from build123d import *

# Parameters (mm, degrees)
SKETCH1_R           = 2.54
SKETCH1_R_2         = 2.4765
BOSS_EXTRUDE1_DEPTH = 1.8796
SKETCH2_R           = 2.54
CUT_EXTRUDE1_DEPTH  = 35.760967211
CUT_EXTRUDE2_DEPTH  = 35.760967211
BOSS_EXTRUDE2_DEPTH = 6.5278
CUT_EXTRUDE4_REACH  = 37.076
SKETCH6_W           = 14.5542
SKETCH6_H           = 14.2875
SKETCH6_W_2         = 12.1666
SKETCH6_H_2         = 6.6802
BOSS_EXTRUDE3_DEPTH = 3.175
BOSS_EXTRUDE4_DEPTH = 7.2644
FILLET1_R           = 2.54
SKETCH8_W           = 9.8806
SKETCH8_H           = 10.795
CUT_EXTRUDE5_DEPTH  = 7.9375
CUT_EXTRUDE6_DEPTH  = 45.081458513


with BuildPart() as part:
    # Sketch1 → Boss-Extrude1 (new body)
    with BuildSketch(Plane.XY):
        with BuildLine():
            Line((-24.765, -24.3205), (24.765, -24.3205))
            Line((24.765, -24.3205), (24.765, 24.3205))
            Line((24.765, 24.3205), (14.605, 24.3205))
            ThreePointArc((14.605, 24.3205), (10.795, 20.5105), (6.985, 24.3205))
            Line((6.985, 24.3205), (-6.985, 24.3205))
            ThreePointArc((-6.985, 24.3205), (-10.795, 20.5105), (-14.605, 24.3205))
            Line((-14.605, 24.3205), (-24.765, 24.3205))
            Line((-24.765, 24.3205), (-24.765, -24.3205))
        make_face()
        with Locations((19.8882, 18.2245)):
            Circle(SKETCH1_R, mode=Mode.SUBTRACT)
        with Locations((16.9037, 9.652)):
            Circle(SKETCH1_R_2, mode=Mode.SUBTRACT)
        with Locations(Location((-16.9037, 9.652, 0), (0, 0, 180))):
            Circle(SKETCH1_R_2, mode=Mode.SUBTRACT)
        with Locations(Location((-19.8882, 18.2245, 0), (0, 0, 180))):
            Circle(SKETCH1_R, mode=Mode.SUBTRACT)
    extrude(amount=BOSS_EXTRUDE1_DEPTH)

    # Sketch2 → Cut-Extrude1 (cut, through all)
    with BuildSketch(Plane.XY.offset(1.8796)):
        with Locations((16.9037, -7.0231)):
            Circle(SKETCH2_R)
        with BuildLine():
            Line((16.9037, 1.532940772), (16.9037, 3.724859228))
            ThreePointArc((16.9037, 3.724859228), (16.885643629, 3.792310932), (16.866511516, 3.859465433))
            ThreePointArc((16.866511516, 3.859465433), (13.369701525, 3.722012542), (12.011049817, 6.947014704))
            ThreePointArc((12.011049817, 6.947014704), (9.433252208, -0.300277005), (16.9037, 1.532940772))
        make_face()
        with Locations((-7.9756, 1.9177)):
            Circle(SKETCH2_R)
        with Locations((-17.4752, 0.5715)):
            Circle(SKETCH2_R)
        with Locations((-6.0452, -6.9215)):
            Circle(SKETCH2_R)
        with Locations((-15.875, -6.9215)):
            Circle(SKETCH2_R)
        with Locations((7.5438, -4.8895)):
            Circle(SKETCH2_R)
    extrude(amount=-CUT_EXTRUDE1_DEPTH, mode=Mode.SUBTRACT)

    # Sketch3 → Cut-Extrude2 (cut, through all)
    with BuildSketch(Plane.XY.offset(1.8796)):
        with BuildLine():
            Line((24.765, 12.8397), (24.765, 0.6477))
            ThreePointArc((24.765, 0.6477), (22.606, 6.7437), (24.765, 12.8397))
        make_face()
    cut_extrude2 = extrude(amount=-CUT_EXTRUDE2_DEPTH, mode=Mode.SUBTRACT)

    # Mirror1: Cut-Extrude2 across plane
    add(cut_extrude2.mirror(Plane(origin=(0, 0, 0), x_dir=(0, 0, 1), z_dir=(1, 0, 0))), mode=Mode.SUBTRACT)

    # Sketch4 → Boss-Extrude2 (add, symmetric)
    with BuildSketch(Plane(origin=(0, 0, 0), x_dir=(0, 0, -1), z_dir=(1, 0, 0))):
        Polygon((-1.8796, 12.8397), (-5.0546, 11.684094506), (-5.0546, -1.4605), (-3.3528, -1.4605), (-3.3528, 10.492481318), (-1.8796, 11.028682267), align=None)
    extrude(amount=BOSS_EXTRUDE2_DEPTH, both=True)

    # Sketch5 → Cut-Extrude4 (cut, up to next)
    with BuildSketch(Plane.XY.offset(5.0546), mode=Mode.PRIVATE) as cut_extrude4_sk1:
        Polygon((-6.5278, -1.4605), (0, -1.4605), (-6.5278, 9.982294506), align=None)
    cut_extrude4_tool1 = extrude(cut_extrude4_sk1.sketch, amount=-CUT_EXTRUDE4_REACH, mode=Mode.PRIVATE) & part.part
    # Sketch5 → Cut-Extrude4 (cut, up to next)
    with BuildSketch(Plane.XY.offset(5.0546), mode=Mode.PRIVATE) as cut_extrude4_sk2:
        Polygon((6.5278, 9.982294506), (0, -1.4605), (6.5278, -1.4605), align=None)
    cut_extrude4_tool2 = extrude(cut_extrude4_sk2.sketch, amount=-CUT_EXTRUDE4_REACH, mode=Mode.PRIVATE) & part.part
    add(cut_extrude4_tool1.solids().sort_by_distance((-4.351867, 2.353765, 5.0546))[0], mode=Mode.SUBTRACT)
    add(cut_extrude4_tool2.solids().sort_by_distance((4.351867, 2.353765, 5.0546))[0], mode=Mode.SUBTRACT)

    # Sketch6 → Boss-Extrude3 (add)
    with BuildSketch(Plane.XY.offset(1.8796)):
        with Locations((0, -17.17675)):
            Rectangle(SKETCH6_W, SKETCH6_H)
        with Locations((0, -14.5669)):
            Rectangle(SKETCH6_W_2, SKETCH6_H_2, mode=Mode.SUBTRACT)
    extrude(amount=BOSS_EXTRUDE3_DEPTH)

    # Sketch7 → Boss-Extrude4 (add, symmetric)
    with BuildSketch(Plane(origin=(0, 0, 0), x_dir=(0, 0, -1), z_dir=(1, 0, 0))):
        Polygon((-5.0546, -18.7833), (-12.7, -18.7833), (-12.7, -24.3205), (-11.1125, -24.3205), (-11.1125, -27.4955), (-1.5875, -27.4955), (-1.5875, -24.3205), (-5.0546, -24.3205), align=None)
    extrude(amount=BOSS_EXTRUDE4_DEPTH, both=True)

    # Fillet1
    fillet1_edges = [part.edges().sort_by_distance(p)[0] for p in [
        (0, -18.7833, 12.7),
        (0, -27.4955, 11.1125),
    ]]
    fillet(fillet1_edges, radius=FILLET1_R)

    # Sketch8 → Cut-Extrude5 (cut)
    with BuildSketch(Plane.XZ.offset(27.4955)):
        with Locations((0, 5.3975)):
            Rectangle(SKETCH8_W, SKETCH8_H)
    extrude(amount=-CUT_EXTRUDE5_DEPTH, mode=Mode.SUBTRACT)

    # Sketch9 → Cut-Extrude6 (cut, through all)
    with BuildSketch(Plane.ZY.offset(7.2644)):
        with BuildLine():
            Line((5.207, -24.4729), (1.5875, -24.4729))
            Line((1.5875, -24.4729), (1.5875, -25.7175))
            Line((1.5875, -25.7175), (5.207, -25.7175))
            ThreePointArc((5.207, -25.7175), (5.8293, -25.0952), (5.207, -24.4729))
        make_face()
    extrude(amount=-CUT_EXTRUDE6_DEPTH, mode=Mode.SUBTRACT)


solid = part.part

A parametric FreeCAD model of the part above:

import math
import FreeCAD as App
import Part
import Sketcher
from FreeCAD import Vector
Q = App.Units.Quantity


def edges_at(feature, points):
    """Names of the edges that pass closest to the given points."""
    edges = feature.Shape.Edges
    near = lambda p: min(range(len(edges)), key=lambda i: edges[i].distToShape(Part.Vertex(*p))[0])
    return sorted({f"Edge{near(p) + 1}" for p in points})


def add_polygon(sketch, points):
    """Adds a closed chain of lines whose ends are joined by coincident constraints."""
    first, n = sketch.GeometryCount, len(points)
    for a, b in zip(points, points[1:] + points[:1]):
        sketch.addGeometry(Part.LineSegment(App.Vector(*a, 0), App.Vector(*b, 0)), False)
    for i in range(n):
        sketch.addConstraint(Sketcher.Constraint("Coincident", first + i, 2, first + (i + 1) % n, 1))

doc = App.newDocument("Part")
params = doc.addObject("Spreadsheet::Sheet", "Params")
for row, (alias, value) in enumerate([
    ("sketch1_diameter", "0.2 in"),
    ("sketch1_radius", "0.15 in"),
    ("sketch1_diameter2", "0.195 in"),
    ("sketch1_width", "0.4 in"),
    ("sketch1_height", "1.915 in"),
    ("pad1_length", "0.074 in"),
    ("sketch2_diameter", "0.2 in"),
    ("sketch2_radius", "0.172 in"),
    ("sketch2_radius2", "0.121 in"),
    ("sketch3_height", "0.48 in"),
    ("sketch4_height", "0.067 in"),
    ("pad2_length", "0.514 in"),
    ("sketch5_width", "0.257 in"),
    ("sketch6_width", "0.257 in"),
    ("sketch7_width", "0.573 in"),
    ("sketch7_width2", "0.479 in"),
    ("sketch7_height", "0.5625 in"),
    ("sketch7_height2", "0.263 in"),
    ("pad3_length", "0.125 in"),
    ("sketch8_width", "0.218 in"),
    ("sketch8_width2", "0.125 in"),
    ("sketch8_height", "0.301 in"),
    ("sketch8_height2", "0.0625 in"),
    ("sketch8_height3", "0.375 in"),
    ("pad4_length", "0.572 in"),
    ("fillet_radius", "0.1 in"),
    ("sketch9_width", "0.389 in"),
    ("sketch9_height", "0.425 in"),
    ("pocket5_length", "0.3125 in"),
], start=1):
    params.set(f"A{row}", alias)
    params.set(f"B{row}", "=" + value)
    params.setAlias(f"B{row}", alias)

body = doc.addObject("PartDesign::Body", "Body")

sketch1 = doc.addObject("Sketcher::SketchObject", "Sketch")
body.addObject(sketch1)
sketch1.AttachmentSupport = (doc.XY_Plane, [""])
sketch1.MapMode = "FlatFace"
sketch1.addGeometry([
    Part.LineSegment(Vector(-24.8, -24.3, 0), Vector(24.8, -24.3, 0)),
    Part.LineSegment(Vector(24.8, -24.3, 0), Vector(24.8, 24.3, 0)),
    Part.LineSegment(Vector(24.8, 24.3, 0), Vector(14.6, 24.3, 0)),
    Part.ArcOfCircle(Part.Circle(Vector(10.8, 24.3, 0), Vector(0, 0, 1), 3.8), math.radians(180), math.radians(360)),
    Part.LineSegment(Vector(7, 24.3, 0), Vector(-7, 24.3, 0)),
    Part.ArcOfCircle(Part.Circle(Vector(-10.8, 24.3, 0), Vector(0, 0, 1), 3.8), math.radians(180), math.radians(360)),
    Part.LineSegment(Vector(-14.6, 24.3, 0), Vector(-24.8, 24.3, 0)),
    Part.LineSegment(Vector(-24.8, 24.3, 0), Vector(-24.8, -24.3, 0)),
    Part.Circle(Vector(-16.9, 9.7, 0), Vector(0, 0, 1), 2.5),
    Part.Circle(Vector(16.9, 9.7, 0), Vector(0, 0, 1), 2.5),
    Part.Circle(Vector(-19.9, 18.2, 0), Vector(0, 0, 1), 2.5),
    Part.Circle(Vector(19.9, 18.2, 0), Vector(0, 0, 1), 2.5),
], False)
sketch1.addConstraint([
    Sketcher.Constraint("Coincident", 0, 2, 1, 1),
    Sketcher.Constraint("Coincident", 1, 2, 2, 1),
    Sketcher.Constraint("Coincident", 2, 2, 3, 2),
    Sketcher.Constraint("Coincident", 3, 1, 4, 1),
    Sketcher.Constraint("Coincident", 4, 2, 5, 2),
    Sketcher.Constraint("Coincident", 5, 1, 6, 1),
    Sketcher.Constraint("Coincident", 6, 2, 7, 1),
    Sketcher.Constraint("Coincident", 7, 2, 0, 1),
    Sketcher.Constraint("Horizontal", 0),
    Sketcher.Constraint("Vertical", 1),
    Sketcher.Constraint("Horizontal", 2),
    Sketcher.Constraint("Horizontal", 4),
    Sketcher.Constraint("Horizontal", 6),
    Sketcher.Constraint("Vertical", 7),
    Sketcher.Constraint("Equal", 3, 5),
    Sketcher.Constraint("Equal", 8, 9),
    Sketcher.Constraint("Equal", 10, 11),
    Sketcher.Constraint("Symmetric", 0, 2, 6, 2, -1, 1),
    Sketcher.Constraint("Symmetric", 3, 3, 5, 3, -2),
    Sketcher.Constraint("Symmetric", 8, 3, 9, 3, -2),
    Sketcher.Constraint("Symmetric", 10, 3, 11, 3, -2),
    Sketcher.Constraint("Horizontal", 5, 3, 1, 2),
    Sketcher.Constraint("Horizontal", 2, 2, 3, 1),
    Sketcher.Constraint("Horizontal", 4, 2, 5, 1),
    Sketcher.Constraint("Diameter", 10, Q("0.2 in")),
    Sketcher.Constraint("Radius", 3, Q("0.15 in")),
    Sketcher.Constraint("Diameter", 8, Q("0.195 in")),
    Sketcher.Constraint("DistanceX", 2, 2, 2, 1, Q("0.4 in")),
    Sketcher.Constraint("DistanceX", 5, 3, 2, 2, Q("1 in")),
    Sketcher.Constraint("DistanceY", 1, 1, 1, 2, Q("1.915 in")),
    Sketcher.Constraint("DistanceY", -1, 1, 8, 3, Q("0.38 in")),
    Sketcher.Constraint("DistanceY", 10, 3, 5, 3, Q("0.24 in")),
    Sketcher.Constraint("DistanceX", 10, 3, -1, 1, Q("0.783 in")),
    Sketcher.Constraint("DistanceX", 8, 3, 9, 3, Q("1.331 in")),
])
sketch1.setExpression("Constraints[24]", "Params.sketch1_diameter")
sketch1.setExpression("Constraints[25]", "Params.sketch1_radius")
sketch1.setExpression("Constraints[26]", "Params.sketch1_diameter2")
sketch1.setExpression("Constraints[27]", "Params.sketch1_width")
sketch1.setExpression("Constraints[29]", "Params.sketch1_height")
pad1 = doc.addObject("PartDesign::Pad", "Pad")
body.addObject(pad1)
pad1.Profile = sketch1
pad1.setExpression("Length", "Params.pad1_length")

sketch2 = doc.addObject("Sketcher::SketchObject", "Sketch001")
body.addObject(sketch2)
sketch2.AttachmentSupport = (doc.XY_Plane, [""])
sketch2.MapMode = "FlatFace"
sketch2.AttachmentOffset = App.Placement(Vector(0, 0, 0.074 * 25.4), App.Rotation())
sketch2.addGeometry([
    Part.Circle(Vector(16.9, -7.02, 0), Vector(0, 0, 1), 2.54),
    Part.LineSegment(Vector(16.9, 1.53, 0), Vector(16.9, 3.72, 0)),
    Part.ArcOfCircle(Part.Circle(Vector(12.67, 2.63, 0), Vector(0, 0, 1), 4.37), math.radians(14.53), math.radians(16.36)),
    Part.ArcOfCircle(Part.Circle(Vector(15.02, 6.32, 0), Vector(0, 0, 1), 3.07), math.radians(168), math.radians(307)),
    Part.ArcOfCircle(Part.Circle(Vector(12.67, 2.63, 0), Vector(0, 0, 1), 4.37), math.radians(99), math.radians(345)),
    Part.Circle(Vector(-7.98, 1.92, 0), Vector(0, 0, 1), 2.54),
    Part.Circle(Vector(-17.48, 0.57, 0), Vector(0, 0, 1), 2.54),
    Part.Circle(Vector(-6.05, -6.92, 0), Vector(0, 0, 1), 2.54),
    Part.Circle(Vector(-15.88, -6.92, 0), Vector(0, 0, 1), 2.54),
    Part.Circle(Vector(7.54, -4.89, 0), Vector(0, 0, 1), 2.54),
], False)
sketch2.addConstraint([
    Sketcher.Constraint("Coincident", 1, 2, 2, 1),
    Sketcher.Constraint("Coincident", 2, 2, 3, 2),
    Sketcher.Constraint("Coincident", 3, 1, 4, 1),
    Sketcher.Constraint("Coincident", 4, 2, 1, 1),
    Sketcher.Constraint("Vertical", 1),
    Sketcher.Constraint("Coincident", 4, 3, 2, 3),
    Sketcher.Constraint("Equal", 2, 4),
    Sketcher.Constraint("Equal", 0, 5),
    Sketcher.Constraint("Equal", 5, 6),
    Sketcher.Constraint("Equal", 6, 7),
    Sketcher.Constraint("Equal", 7, 8),
    Sketcher.Constraint("Equal", 8, 9),
    Sketcher.Constraint("Horizontal", 7, 3, 8, 3),
    Sketcher.Constraint("Vertical", 0, 3, 1, 2),
    Sketcher.Constraint("Diameter", 0, Q("0.2 in")),
    Sketcher.Constraint("Radius", 2, Q("0.172 in")),
    Sketcher.Constraint("Radius", 3, Q("0.121 in")),
    Sketcher.Constraint("DistanceY", 0, 3, 2, 3, Q("0.38 in")),
    Sketcher.Constraint("DistanceX", 6, 3, 7, 3, Q("0.45 in")),
    Sketcher.Constraint("DistanceY", 7, 3, 9, 3, Q("0.08 in")),
    Sketcher.Constraint("DistanceX", -1, 1, 2, 3, Q("0.499 in")),
    Sketcher.Constraint("DistanceX", 5, 3, -1, 1, Q("0.314 in")),
    Sketcher.Constraint("DistanceX", 6, 3, -1, 1, Q("0.688 in")),
    Sketcher.Constraint("DistanceX", 8, 3, -1, 1, Q("0.625 in")),
    Sketcher.Constraint("DistanceX", -1, 1, 9, 3, Q("0.297 in")),
    Sketcher.Constraint("DistanceY", 5, 3, 4, 3, Q("0.028 in")),
    Sketcher.Constraint("DistanceY", 6, 3, 5, 3, Q("0.053 in")),
    Sketcher.Constraint("DistanceY", 7, 3, 5, 3, Q("0.348 in")),
    Sketcher.Constraint("DistanceX", -1, 1, 0, 3, Q("0.6655 in")),
    Sketcher.Constraint("DistanceY", 0, 3, -1, 1, Q("0.2765 in")),
    Sketcher.Constraint("DistanceX", -1, 1, 2, 2, Q("16.866512 mm")),
    Sketcher.Constraint("DistanceX", -1, 1, 3, 1, Q("12.01105 mm")),
])
sketch2.setExpression("Constraints[14]", "Params.sketch2_diameter")
sketch2.setExpression("Constraints[15]", "Params.sketch2_radius")
sketch2.setExpression("Constraints[16]", "Params.sketch2_radius2")
pocket1 = doc.addObject("PartDesign::Pocket", "Pocket")
body.addObject(pocket1)
pocket1.Profile = sketch2
pocket1.Type = "ThroughAll"

sketch3 = doc.addObject("Sketcher::SketchObject", "Sketch002")
body.addObject(sketch3)
sketch3.AttachmentSupport = (doc.XY_Plane, [""])
sketch3.MapMode = "FlatFace"
sketch3.AttachmentOffset = App.Placement(Vector(0, 0, 0.074 * 25.4), App.Rotation())
sketch3.addGeometry([
    Part.LineSegment(Vector(25, 1, 0), Vector(25, 13, 0)),
    Part.ArcOfCircle(Part.Circle(Vector(32, 7, 0), Vector(0, 0, 1), 10), math.radians(141), math.radians(219)),
], False)
sketch3.addConstraint([
    Sketcher.Constraint("Coincident", 0, 1, 1, 2),
    Sketcher.Constraint("Coincident", 1, 1, 0, 2),
    Sketcher.Constraint("Vertical", 0),
    Sketcher.Constraint("DistanceY", 0, 1, 0, 2, Q("0.48 in")),
    Sketcher.Constraint("DistanceX", -1, 1, 0, 1, Q("0.975 in")),
    Sketcher.Constraint("DistanceY", -1, 1, 1, 3, Q("0.2655 in")),
    Sketcher.Constraint("Radius", 1, Q("9.685618 mm")),
])
sketch3.setExpression("Constraints[3]", "Params.sketch3_height")
pocket2 = doc.addObject("PartDesign::Pocket", "Pocket001")
body.addObject(pocket2)
pocket2.Profile = sketch3
pocket2.Type = "ThroughAll"
doc.recompute()

mirrored = doc.addObject("PartDesign::Mirrored", "Mirrored")
body.addObject(mirrored)
mirrored.Originals = [pocket2]
mirrored.MirrorPlane = (doc.YZ_Plane, [""])
body.Tip = mirrored

sketch4 = doc.addObject("Sketcher::SketchObject", "Sketch003")
body.addObject(sketch4)
sketch4.AttachmentSupport = (doc.YZ_Plane, [""])
sketch4.MapMode = "FlatFace"
add_polygon(sketch4, [(12.8, 1.9), (11.7, 5.1), (-1.5, 5.1), (-1.5, 3.4), (10.5, 3.4), (11, 1.9)])
sketch4.addConstraint([
    Sketcher.Constraint("Horizontal", 1),
    Sketcher.Constraint("Vertical", 2),
    Sketcher.Constraint("Horizontal", 3),
    Sketcher.Constraint("Horizontal", 5),
    Sketcher.Constraint("Parallel", 0, 4),
    Sketcher.Constraint("Angle", 0, Q("110 deg")),
    Sketcher.Constraint("DistanceY", 2, 2, 2, 1, Q("0.067 in")),
    Sketcher.Constraint("DistanceX", 5, 1, 5, 2, Q("0.0712999 in")),
    Sketcher.Constraint("DistanceY", -1, 1, 0, 2, Q("0.199 in")),
    Sketcher.Constraint("DistanceY", -1, 1, 4, 2, Q("0.074 in")),
    Sketcher.Constraint("DistanceX", 2, 2, 5, 2, Q("0.563 in")),
    Sketcher.Constraint("DistanceX", 1, 2, -1, 1, Q("0.0575 in")),
])
sketch4.setExpression("Constraints[12]", "Params.sketch4_height")
pad2 = doc.addObject("PartDesign::Pad", "Pad001")
body.addObject(pad2)
pad2.Profile = sketch4
pad2.setExpression("Length", "Params.pad2_length")
pad2.Midplane = True

sketch5 = doc.addObject("Sketcher::SketchObject", "Sketch004")
body.addObject(sketch5)
sketch5.AttachmentSupport = (doc.XY_Plane, [""])
sketch5.MapMode = "FlatFace"
sketch5.AttachmentOffset = App.Placement(Vector(0, 0, 0.199 * 25.4), App.Rotation())
add_polygon(sketch5, [(-7, -1), (0, -1), (-7, 10)])
sketch5.addConstraint([
    Sketcher.Constraint("Horizontal", 0),
    Sketcher.Constraint("Vertical", 2),
    Sketcher.Constraint("PointOnObject", 0, 2, -2),
    Sketcher.Constraint("DistanceX", 0, 1, 0, 2, Q("0.257 in")),
    Sketcher.Constraint("DistanceY", 0, 2, -1, 1, Q("0.0575 in")),
    Sketcher.Constraint("DistanceY", 2, 2, 2, 1, Q("11.442795 mm")),
])
sketch5.setExpression("Constraints[6]", "Params.sketch5_width")
pocket3 = doc.addObject("PartDesign::Pocket", "Pocket002")
body.addObject(pocket3)
pocket3.Profile = sketch5
pocket3.Type = "UpToFirst"

sketch6 = doc.addObject("Sketcher::SketchObject", "Sketch005")
body.addObject(sketch6)
sketch6.AttachmentSupport = (doc.XY_Plane, [""])
sketch6.MapMode = "FlatFace"
sketch6.AttachmentOffset = App.Placement(Vector(0, 0, 0.199 * 25.4), App.Rotation())
add_polygon(sketch6, [(7, 10), (0, -1), (7, -1)])
sketch6.addConstraint([
    Sketcher.Constraint("Horizontal", 1),
    Sketcher.Constraint("Vertical", 2),
    Sketcher.Constraint("PointOnObject", 0, 2, -2),
    Sketcher.Constraint("DistanceX", 1, 1, 1, 2, Q("0.257 in")),
    Sketcher.Constraint("DistanceY", 0, 2, -1, 1, Q("0.0575 in")),
    Sketcher.Constraint("DistanceY", 2, 1, 2, 2, Q("11.442795 mm")),
])
sketch6.setExpression("Constraints[6]", "Params.sketch6_width")
pocket4 = doc.addObject("PartDesign::Pocket", "Pocket003")
body.addObject(pocket4)
pocket4.Profile = sketch6
pocket4.Type = "UpToFirst"

sketch7 = doc.addObject("Sketcher::SketchObject", "Sketch006")
body.addObject(sketch7)
sketch7.AttachmentSupport = (doc.XY_Plane, [""])
sketch7.MapMode = "FlatFace"
sketch7.AttachmentOffset = App.Placement(Vector(0, 0, 0.074 * 25.4), App.Rotation())
add_polygon(sketch7, [(-7, -10), (-7, -24), (7, -24), (7, -10)])
add_polygon(sketch7, [(6, -18), (-6, -18), (-6, -11), (6, -11)])
sketch7.addConstraint([
    Sketcher.Constraint("Vertical", 0),
    Sketcher.Constraint("Horizontal", 1),
    Sketcher.Constraint("Vertical", 2),
    Sketcher.Constraint("Horizontal", 3),
    Sketcher.Constraint("Horizontal", 4),
    Sketcher.Constraint("Vertical", 5),
    Sketcher.Constraint("Horizontal", 6),
    Sketcher.Constraint("Vertical", 7),
    Sketcher.Constraint("DistanceX", 1, 1, 1, 2, Q("0.573 in")),
    Sketcher.Constraint("DistanceX", 4, 2, 4, 1, Q("0.479 in")),
    Sketcher.Constraint("DistanceY", 0, 2, 0, 1, Q("0.5625 in")),
    Sketcher.Constraint("DistanceY", 5, 1, 5, 2, Q("0.263 in")),
    Sketcher.Constraint("DistanceY", 4, 2, 3, 2, Q("0.31 in")),
    Sketcher.Constraint("DistanceY", 2, 2, -1, 1, Q("0.395 in")),
    Sketcher.Constraint("DistanceX", 0, 2, 4, 2, Q("0.047 in")),
    Sketcher.Constraint("DistanceX", 0, 2, -1, 1, Q("0.2865 in")),
])
sketch7.setExpression("Constraints[16]", "Params.sketch7_width")
sketch7.setExpression("Constraints[17]", "Params.sketch7_width2")
sketch7.setExpression("Constraints[18]", "Params.sketch7_height")
sketch7.setExpression("Constraints[19]", "Params.sketch7_height2")
pad3 = doc.addObject("PartDesign::Pad", "Pad002")
body.addObject(pad3)
pad3.Profile = sketch7
pad3.setExpression("Length", "Params.pad3_length")

sketch8 = doc.addObject("Sketcher::SketchObject", "Sketch007")
body.addObject(sketch8)
sketch8.AttachmentSupport = (doc.YZ_Plane, [""])
sketch8.MapMode = "FlatFace"
add_polygon(sketch8, [(-18.8, 5.1), (-18.8, 12.7), (-24.3, 12.7), (-24.3, 11.1), (-27.5, 11.1), (-27.5, 1.6), (-24.3, 1.6), (-24.3, 5.1)])
sketch8.addConstraint([
    Sketcher.Constraint("Vertical", 0),
    Sketcher.Constraint("Horizontal", 1),
    Sketcher.Constraint("Vertical", 2),
    Sketcher.Constraint("Horizontal", 3),
    Sketcher.Constraint("Vertical", 4),
    Sketcher.Constraint("Horizontal", 5),
    Sketcher.Constraint("Vertical", 6),
    Sketcher.Constraint("Horizontal", 7),
    Sketcher.Constraint("Vertical", 2, 2, 5, 2),
    Sketcher.Constraint("DistanceY", -1, 1, 0, 2, Q("0.5 in")),
    Sketcher.Constraint("DistanceX", 1, 2, 1, 1, Q("0.218 in")),
    Sketcher.Constraint("DistanceX", 3, 2, 3, 1, Q("0.125 in")),
    Sketcher.Constraint("DistanceY", 0, 1, 0, 2, Q("0.301 in")),
    Sketcher.Constraint("DistanceY", 2, 2, 2, 1, Q("0.0625 in")),
    Sketcher.Constraint("DistanceY", 4, 2, 4, 1, Q("0.375 in")),
    Sketcher.Constraint("DistanceX", 0, 2, -1, 1, Q("0.7395 in")),
])
sketch8.setExpression("Constraints[18]", "Params.sketch8_width")
sketch8.setExpression("Constraints[19]", "Params.sketch8_width2")
sketch8.setExpression("Constraints[20]", "Params.sketch8_height")
sketch8.setExpression("Constraints[21]", "Params.sketch8_height2")
sketch8.setExpression("Constraints[22]", "Params.sketch8_height3")
pad4 = doc.addObject("PartDesign::Pad", "Pad003")
body.addObject(pad4)
pad4.Profile = sketch8
pad4.setExpression("Length", "Params.pad4_length")
pad4.Midplane = True
doc.recompute()

fillet = doc.addObject("PartDesign::Fillet", "Fillet")
body.addObject(fillet)
fillet.Base = (pad4, edges_at(pad4, [(0, -18.783, 12.7), (0, -27.495, 11.113)]))
fillet.setExpression("Radius", "Params.fillet_radius")

sketch9 = doc.addObject("Sketcher::SketchObject", "Sketch008")
body.addObject(sketch9)
sketch9.AttachmentSupport = (doc.XZ_Plane, [""])
sketch9.MapMode = "FlatFace"
sketch9.AttachmentOffset = App.Placement(Vector(0, 0, 1.0825 * 25.4), App.Rotation())
add_polygon(sketch9, [(-5, 11), (-5, 0), (5, 0), (5, 11)])
sketch9.addConstraint([
    Sketcher.Constraint("Vertical", 0),
    Sketcher.Constraint("Horizontal", 1),
    Sketcher.Constraint("Vertical", 2),
    Sketcher.Constraint("Horizontal", 3),
    Sketcher.Constraint("Symmetric", 0, 2, 1, 2, -1, 1),
    Sketcher.Constraint("DistanceX", 1, 1, 1, 2, Q("0.389 in")),
    Sketcher.Constraint("DistanceY", 0, 2, 0, 1, Q("0.425 in")),
])
sketch9.setExpression("Constraints[9]", "Params.sketch9_width")
sketch9.setExpression("Constraints[10]", "Params.sketch9_height")
pocket5 = doc.addObject("PartDesign::Pocket", "Pocket004")
body.addObject(pocket5)
pocket5.Profile = sketch9
pocket5.setExpression("Length", "Params.pocket5_length")

sketch10 = doc.addObject("Sketcher::SketchObject", "Sketch009")
body.addObject(sketch10)
sketch10.AttachmentSupport = (doc.YZ_Plane, [""])
sketch10.MapMode = "FlatFace"
sketch10.AttachmentOffset = App.Placement(Vector(0, 0, -0.286 * 25.4), App.Rotation())
sketch10.addGeometry([
    Part.LineSegment(Vector(-24.5, 5.2, 0), Vector(-24.5, 1.6, 0)),
    Part.LineSegment(Vector(-24.5, 1.6, 0), Vector(-25.7, 1.6, 0)),
    Part.LineSegment(Vector(-25.7, 1.6, 0), Vector(-25.7, 5.2, 0)),
    Part.ArcOfCircle(Part.Circle(Vector(-25.1, 5.2, 0), Vector(0, 0, 1), 0.6), math.radians(0), math.radians(180)),
], False)
sketch10.addConstraint([
    Sketcher.Constraint("Coincident", 0, 2, 1, 1),
    Sketcher.Constraint("Coincident", 1, 2, 2, 1),
    Sketcher.Constraint("Tangent", 2, 2, 3, 2),
    Sketcher.Constraint("Tangent", 3, 1, 0, 1),
    Sketcher.Constraint("Vertical", 0),
    Sketcher.Constraint("Horizontal", 1),
    Sketcher.Constraint("Vertical", 2),
    Sketcher.Constraint("Radius", 3, Q("0.0245 in")),
    Sketcher.Constraint("DistanceY", 0, 2, 0, 1, Q("0.1425 in")),
    Sketcher.Constraint("DistanceX", 3, 3, -1, 1, Q("0.988 in")),
    Sketcher.Constraint("DistanceY", -1, 1, 3, 3, Q("0.205 in")),
])
pocket6 = doc.addObject("PartDesign::Pocket", "Pocket005")
body.addObject(pocket6)
pocket6.Profile = sketch10
pocket6.Type = "ThroughAll"
pocket6.Reversed = True

doc.recompute()
